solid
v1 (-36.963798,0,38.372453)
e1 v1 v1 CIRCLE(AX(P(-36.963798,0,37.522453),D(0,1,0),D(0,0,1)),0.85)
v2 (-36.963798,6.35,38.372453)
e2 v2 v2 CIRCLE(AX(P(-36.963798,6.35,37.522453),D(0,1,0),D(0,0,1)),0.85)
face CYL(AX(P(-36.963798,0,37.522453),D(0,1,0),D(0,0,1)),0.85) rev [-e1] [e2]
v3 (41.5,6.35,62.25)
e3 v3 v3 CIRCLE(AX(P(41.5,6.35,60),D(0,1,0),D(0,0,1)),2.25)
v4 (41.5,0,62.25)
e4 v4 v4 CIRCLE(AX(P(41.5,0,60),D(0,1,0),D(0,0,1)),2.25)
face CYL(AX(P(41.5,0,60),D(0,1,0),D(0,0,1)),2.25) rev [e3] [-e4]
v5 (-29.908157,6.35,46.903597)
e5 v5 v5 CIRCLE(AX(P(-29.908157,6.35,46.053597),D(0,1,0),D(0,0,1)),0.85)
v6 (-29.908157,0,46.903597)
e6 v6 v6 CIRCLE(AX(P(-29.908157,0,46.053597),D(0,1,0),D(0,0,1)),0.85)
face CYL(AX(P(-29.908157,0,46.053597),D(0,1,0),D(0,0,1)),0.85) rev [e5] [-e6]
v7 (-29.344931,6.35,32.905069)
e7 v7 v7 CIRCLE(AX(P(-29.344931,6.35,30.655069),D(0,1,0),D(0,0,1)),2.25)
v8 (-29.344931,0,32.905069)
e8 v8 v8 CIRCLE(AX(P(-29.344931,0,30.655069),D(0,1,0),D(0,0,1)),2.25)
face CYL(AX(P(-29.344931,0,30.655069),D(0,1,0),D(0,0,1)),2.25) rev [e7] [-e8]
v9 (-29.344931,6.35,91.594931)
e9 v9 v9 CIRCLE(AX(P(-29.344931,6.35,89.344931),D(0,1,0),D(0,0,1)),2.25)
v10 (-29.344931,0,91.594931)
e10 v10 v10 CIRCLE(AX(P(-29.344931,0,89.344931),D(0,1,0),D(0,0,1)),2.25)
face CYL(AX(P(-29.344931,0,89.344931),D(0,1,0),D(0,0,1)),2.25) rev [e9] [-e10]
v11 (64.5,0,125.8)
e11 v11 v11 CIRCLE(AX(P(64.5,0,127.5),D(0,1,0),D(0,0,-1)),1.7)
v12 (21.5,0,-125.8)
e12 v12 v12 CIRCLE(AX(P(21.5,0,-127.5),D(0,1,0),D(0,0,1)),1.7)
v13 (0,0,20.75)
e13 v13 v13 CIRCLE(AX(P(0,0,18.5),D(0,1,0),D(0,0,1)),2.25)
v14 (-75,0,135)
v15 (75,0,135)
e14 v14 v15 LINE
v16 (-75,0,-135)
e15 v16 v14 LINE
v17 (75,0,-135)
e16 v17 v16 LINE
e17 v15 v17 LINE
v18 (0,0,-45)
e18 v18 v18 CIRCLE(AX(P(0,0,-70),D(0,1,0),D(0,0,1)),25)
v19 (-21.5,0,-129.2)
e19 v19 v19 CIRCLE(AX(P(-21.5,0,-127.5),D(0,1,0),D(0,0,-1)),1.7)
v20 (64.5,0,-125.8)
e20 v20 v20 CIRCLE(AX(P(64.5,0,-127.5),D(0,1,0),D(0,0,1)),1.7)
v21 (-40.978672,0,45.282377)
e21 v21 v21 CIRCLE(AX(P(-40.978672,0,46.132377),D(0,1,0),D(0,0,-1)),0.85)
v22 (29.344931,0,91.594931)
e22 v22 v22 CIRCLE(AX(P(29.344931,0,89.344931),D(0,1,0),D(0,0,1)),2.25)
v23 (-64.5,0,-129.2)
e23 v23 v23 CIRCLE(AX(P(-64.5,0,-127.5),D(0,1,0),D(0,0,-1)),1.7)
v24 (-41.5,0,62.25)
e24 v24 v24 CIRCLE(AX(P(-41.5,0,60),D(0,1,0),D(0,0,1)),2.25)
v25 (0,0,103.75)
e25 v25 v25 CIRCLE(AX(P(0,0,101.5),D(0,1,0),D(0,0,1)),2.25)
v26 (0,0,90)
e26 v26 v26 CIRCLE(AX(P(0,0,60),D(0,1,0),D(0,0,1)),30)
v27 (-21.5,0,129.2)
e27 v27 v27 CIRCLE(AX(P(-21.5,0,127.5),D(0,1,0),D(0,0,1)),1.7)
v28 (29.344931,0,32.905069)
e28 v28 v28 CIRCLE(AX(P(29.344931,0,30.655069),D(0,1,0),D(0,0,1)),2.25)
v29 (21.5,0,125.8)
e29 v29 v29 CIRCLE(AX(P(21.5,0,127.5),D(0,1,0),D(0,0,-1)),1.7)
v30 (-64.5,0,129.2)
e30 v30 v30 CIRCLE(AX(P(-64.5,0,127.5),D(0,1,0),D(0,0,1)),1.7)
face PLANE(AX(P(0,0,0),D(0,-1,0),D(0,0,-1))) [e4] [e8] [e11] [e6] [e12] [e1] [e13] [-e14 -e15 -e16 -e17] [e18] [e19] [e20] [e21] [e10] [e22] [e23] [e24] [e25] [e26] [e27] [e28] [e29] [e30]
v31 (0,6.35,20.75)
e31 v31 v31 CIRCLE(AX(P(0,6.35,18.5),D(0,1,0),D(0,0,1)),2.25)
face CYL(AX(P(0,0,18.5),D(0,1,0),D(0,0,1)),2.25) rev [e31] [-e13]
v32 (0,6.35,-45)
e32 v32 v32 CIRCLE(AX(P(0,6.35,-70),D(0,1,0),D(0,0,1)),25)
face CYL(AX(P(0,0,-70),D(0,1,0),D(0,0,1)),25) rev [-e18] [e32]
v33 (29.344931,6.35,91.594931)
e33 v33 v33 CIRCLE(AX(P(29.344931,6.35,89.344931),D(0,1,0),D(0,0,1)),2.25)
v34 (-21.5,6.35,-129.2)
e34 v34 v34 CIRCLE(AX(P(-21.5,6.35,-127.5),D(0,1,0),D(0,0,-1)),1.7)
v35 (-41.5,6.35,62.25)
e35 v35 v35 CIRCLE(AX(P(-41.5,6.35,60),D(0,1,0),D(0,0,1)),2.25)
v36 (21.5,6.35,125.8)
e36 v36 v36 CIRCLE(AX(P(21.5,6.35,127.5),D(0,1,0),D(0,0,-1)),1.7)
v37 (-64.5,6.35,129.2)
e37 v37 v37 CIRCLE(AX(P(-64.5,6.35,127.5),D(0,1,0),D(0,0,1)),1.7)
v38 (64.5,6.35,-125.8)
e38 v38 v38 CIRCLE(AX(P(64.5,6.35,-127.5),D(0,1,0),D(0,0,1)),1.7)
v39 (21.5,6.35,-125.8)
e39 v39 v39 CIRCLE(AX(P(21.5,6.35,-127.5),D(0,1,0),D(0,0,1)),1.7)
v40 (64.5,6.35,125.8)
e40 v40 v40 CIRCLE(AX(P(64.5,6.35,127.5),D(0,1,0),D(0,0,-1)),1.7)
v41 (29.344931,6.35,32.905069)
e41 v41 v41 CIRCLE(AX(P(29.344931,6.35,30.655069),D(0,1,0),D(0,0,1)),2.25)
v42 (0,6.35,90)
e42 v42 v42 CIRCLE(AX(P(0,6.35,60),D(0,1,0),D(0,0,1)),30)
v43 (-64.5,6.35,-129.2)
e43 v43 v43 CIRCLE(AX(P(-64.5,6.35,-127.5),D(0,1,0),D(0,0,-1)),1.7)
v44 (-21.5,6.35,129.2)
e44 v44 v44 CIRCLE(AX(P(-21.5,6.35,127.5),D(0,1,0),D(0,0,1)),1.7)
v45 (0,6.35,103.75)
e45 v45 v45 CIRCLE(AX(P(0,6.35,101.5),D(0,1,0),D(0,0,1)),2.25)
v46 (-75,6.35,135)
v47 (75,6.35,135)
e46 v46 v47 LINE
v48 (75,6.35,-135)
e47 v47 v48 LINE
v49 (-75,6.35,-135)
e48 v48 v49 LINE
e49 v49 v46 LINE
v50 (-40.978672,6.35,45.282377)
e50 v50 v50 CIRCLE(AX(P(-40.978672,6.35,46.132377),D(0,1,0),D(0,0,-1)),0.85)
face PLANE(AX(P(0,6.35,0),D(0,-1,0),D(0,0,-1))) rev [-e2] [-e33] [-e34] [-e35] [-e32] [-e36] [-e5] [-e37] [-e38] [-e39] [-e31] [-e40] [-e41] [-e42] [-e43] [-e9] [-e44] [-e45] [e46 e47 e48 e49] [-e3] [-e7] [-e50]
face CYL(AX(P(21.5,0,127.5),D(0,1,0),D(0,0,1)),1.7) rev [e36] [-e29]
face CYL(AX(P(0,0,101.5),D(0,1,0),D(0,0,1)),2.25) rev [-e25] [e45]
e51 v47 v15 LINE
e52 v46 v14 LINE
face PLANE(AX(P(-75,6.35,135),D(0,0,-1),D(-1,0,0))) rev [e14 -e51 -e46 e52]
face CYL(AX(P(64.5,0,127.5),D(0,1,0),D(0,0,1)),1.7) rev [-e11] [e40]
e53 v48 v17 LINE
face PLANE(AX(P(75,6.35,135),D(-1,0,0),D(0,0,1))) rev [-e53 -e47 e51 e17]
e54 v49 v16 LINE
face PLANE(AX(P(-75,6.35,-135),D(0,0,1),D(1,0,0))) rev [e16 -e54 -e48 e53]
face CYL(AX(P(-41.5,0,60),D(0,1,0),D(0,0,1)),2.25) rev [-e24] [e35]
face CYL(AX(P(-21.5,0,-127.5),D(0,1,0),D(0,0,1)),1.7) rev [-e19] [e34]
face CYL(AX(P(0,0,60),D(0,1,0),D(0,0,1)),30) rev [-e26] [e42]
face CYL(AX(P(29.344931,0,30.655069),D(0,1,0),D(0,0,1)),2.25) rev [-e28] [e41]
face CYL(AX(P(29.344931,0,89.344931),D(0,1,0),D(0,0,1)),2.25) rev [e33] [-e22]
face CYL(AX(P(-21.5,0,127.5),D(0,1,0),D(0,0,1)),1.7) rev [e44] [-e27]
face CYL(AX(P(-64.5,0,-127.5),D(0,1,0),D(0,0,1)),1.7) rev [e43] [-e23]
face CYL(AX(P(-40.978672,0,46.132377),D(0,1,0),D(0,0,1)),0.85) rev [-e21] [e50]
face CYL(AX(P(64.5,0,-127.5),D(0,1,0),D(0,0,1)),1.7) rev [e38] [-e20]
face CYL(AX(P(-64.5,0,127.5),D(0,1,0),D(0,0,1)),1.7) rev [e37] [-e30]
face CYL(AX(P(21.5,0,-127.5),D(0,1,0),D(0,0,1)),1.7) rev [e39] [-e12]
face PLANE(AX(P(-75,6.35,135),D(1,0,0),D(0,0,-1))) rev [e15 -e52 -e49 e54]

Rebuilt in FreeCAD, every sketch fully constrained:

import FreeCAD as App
import Part
import Sketcher
from FreeCAD import Vector
Q = App.Units.Quantity


def add_polygon(sketch, points):
    """Adds a closed chain of lines whose ends are joined by coincident constraints."""
    first, n = sketch.GeometryCount, len(points)
    for a, b in zip(points, points[1:] + points[:1]):
        sketch.addGeometry(Part.LineSegment(App.Vector(*a, 0), App.Vector(*b, 0)), False)
    for i in range(n):
        sketch.addConstraint(Sketcher.Constraint("Coincident", first + i, 2, first + (i + 1) % n, 1))

doc = App.newDocument("Part")
body = doc.addObject("PartDesign::Body", "Body")

sketch1 = doc.addObject("Sketcher::SketchObject", "Sketch")
body.addObject(sketch1)
sketch1.AttachmentSupport = (doc.XZ_Plane, [""])
sketch1.MapMode = "FlatFace"
add_polygon(sketch1, [(-75, -135), (-75, 135), (75, 135), (75, -135)])
sketch1.addConstraint([
    Sketcher.Constraint("Vertical", 0),
    Sketcher.Constraint("Horizontal", 1),
    Sketcher.Constraint("Vertical", 2),
    Sketcher.Constraint("Horizontal", 3),
    Sketcher.Constraint("Symmetric", 0, 2, 2, 2, -1, 1),
    Sketcher.Constraint("DistanceX", 1, 1, 1, 2, Q("150 mm")),
    Sketcher.Constraint("DistanceY", 0, 1, 0, 2, Q("270 mm")),
])
pad1 = doc.addObject("PartDesign::Pad", "Pad")
body.addObject(pad1)
pad1.Profile = sketch1
pad1.Length = 6.35
pad1.Reversed = True

sketch2 = doc.addObject("Sketcher::SketchObject", "Sketch001")
body.addObject(sketch2)
sketch2.AttachmentSupport = (doc.XZ_Plane, [""])
sketch2.MapMode = "FlatFace"
sketch2.AttachmentOffset = App.Placement(Vector(0, 0, -6.35), App.Rotation())
sketch2.addGeometry([
    Part.Circle(Vector(0, 18.5, 0), Vector(0, 0, 1), 2.2),
    Part.Circle(Vector(29.3, 30.7, 0), Vector(0, 0, 1), 2.2),
    Part.Circle(Vector(41.5, 60, 0), Vector(0, 0, 1), 2.2),
    Part.Circle(Vector(29.3, 89.3, 0), Vector(0, 0, 1), 2.2),
    Part.Circle(Vector(0, 101.5, 0), Vector(0, 0, 1), 2.2),
    Part.Circle(Vector(-29.3, 89.3, 0), Vector(0, 0, 1), 2.2),
    Part.Circle(Vector(-41.5, 60, 0), Vector(0, 0, 1), 2.2),
    Part.Circle(Vector(-29.3, 30.7, 0), Vector(0, 0, 1), 2.2),
    Part.Circle(Vector(0, 60, 0), Vector(0, 0, 1), 30),
], False)
sketch2.addConstraint([
    Sketcher.Constraint("Equal", 0, 1),
    Sketcher.Constraint("Equal", 1, 2),
    Sketcher.Constraint("Equal", 2, 3),
    Sketcher.Constraint("Equal", 3, 4),
    Sketcher.Constraint("Equal", 4, 5),
    Sketcher.Constraint("Equal", 5, 6),
    Sketcher.Constraint("Equal", 6, 7),
    Sketcher.Constraint("Symmetric", 3, 3, 5, 3, -2),
    Sketcher.Constraint("Symmetric", 2, 3, 6, 3, -2),
    Sketcher.Constraint("Symmetric", 1, 3, 7, 3, -2),
    Sketcher.Constraint("PointOnObject", 0, 3, -2),
    Sketcher.Constraint("PointOnObject", 4, 3, -2),
    Sketcher.Constraint("PointOnObject", 8, 3, -2),
    Sketcher.Constraint("Horizontal", 6, 3, 8, 3),
    Sketcher.Constraint("Vertical", 1, 3, 3, 3),
    Sketcher.Constraint("Diameter", 8, Q("60 mm")),
    Sketcher.Constraint("Diameter", 0, Q("4.5 mm")),
    Sketcher.Constraint("DistanceY", -1, 1, 2, 3, Q("60 mm")),
    Sketcher.Constraint("DistanceY", 0, 3, 4, 3, Q("83 mm")),
    Sketcher.Constraint("DistanceY", -1, 1, 0, 3, Q("18.5 mm")),
    Sketcher.Constraint("DistanceX", -1, 1, 2, 3, Q("41.5 mm")),
    Sketcher.Constraint("DistanceX", -1, 1, 1, 3, Q("29.344931 mm")),
    Sketcher.Constraint("DistanceY", -1, 1, 1, 3, Q("30.655069 mm")),
    Sketcher.Constraint("DistanceY", -1, 1, 3, 3, Q("89.344931 mm")),
])
pocket1 = doc.addObject("PartDesign::Pocket", "Pocket")
body.addObject(pocket1)
pocket1.Profile = sketch2
pocket1.Type = "ThroughAll"
pocket1.Reversed = True

sketch3 = doc.addObject("Sketcher::SketchObject", "Sketch002")
body.addObject(sketch3)
sketch3.AttachmentSupport = (doc.XZ_Plane, [""])
sketch3.MapMode = "FlatFace"
sketch3.AttachmentOffset = App.Placement(Vector(0, 0, -6.35), App.Rotation())
sketch3.addGeometry([
    Part.Circle(Vector(-37, 37.5, 0), Vector(0, 0, 1), 0.8),
    Part.Circle(Vector(-41, 46.1, 0), Vector(0, 0, 1), 0.8),
    Part.Circle(Vector(-29.9, 46.1, 0), Vector(0, 0, 1), 0.8),
], False)
sketch3.addConstraint([
    Sketcher.Constraint("Equal", 0, 1),
    Sketcher.Constraint("Equal", 1, 2),
    Sketcher.Constraint("Diameter", 0, Q("1.7 mm")),
    Sketcher.Constraint("DistanceX", 0, 3, -1, 1, Q("36.963798 mm")),
    Sketcher.Constraint("DistanceX", 1, 3, -1, 1, Q("40.978672 mm")),
    Sketcher.Constraint("DistanceX", 0, 3, 2, 3, Q("7.055641 mm")),
    Sketcher.Constraint("DistanceY", 2, 3, 1, 3, Q("0.078779 mm")),
    Sketcher.Constraint("DistanceY", -1, 1, 0, 3, Q("37.522453 mm")),
    Sketcher.Constraint("DistanceY", -1, 1, 1, 3, Q("46.132377 mm")),
])
pocket2 = doc.addObject("PartDesign::Pocket", "Pocket001")
body.addObject(pocket2)
pocket2.Profile = sketch3
pocket2.Type = "ThroughAll"
pocket2.Reversed = True

sketch4 = doc.addObject("Sketcher::SketchObject", "Sketch003")
body.addObject(sketch4)
sketch4.AttachmentSupport = (doc.XZ_Plane, [""])
sketch4.MapMode = "FlatFace"
sketch4.AttachmentOffset = App.Placement(Vector(0, 0, -6.35), App.Rotation())
sketch4.addGeometry([
    Part.Circle(Vector(-64.5, 127.5, 0), Vector(0, 0, 1), 1.7),
    Part.Circle(Vector(-21.5, 127.5, 0), Vector(0, 0, 1), 1.7),
    Part.Circle(Vector(21.5, 127.5, 0), Vector(0, 0, 1), 1.7),
    Part.Circle(Vector(64.5, 127.5, 0), Vector(0, 0, 1), 1.7),
    Part.Circle(Vector(64.5, -127.5, 0), Vector(0, 0, 1), 1.7),
    Part.Circle(Vector(21.5, -127.5, 0), Vector(0, 0, 1), 1.7),
    Part.Circle(Vector(-64.5, -127.5, 0), Vector(0, 0, 1), 1.7),
    Part.Circle(Vector(-21.5, -127.5, 0), Vector(0, 0, 1), 1.7),
], False)
sketch4.addConstraint([
    Sketcher.Constraint("Equal", 0, 1),
    Sketcher.Constraint("Equal", 1, 2),
    Sketcher.Constraint("Equal", 2, 3),
    Sketcher.Constraint("Equal", 3, 4),
    Sketcher.Constraint("Equal", 4, 5),
    Sketcher.Constraint("Equal", 5, 6),
    Sketcher.Constraint("Equal", 6, 7),
    Sketcher.Constraint("Symmetric", 0, 3, 4, 3, -1, 1),
    Sketcher.Constraint("Symmetric", 1, 3, 5, 3, -1, 1),
    Sketcher.Constraint("Symmetric", 3, 3, 6, 3, -1, 1),
    Sketcher.Constraint("Symmetric", 2, 3, 7, 3, -1, 1),
    Sketcher.Constraint("Symmetric", 1, 3, 2, 3, -2),
    Sketcher.Constraint("Symmetric", 0, 3, 3, 3, -2),
    Sketcher.Constraint("Horizontal", 0, 3, 1, 3),
    Sketcher.Constraint("Diameter", 0, Q("3.4 mm")),
    Sketcher.Constraint("DistanceX", 0, 3, 1, 3, Q("43 mm")),
    Sketcher.Constraint("DistanceX", 1, 3, 2, 3, Q("43 mm")),
    Sketcher.Constraint("DistanceY", 4, 3, 3, 3, Q("255 mm")),
])
pocket3 = doc.addObject("PartDesign::Pocket", "Pocket002")
body.addObject(pocket3)
pocket3.Profile = sketch4
pocket3.Type = "ThroughAll"
pocket3.Reversed = True

sketch5 = doc.addObject("Sketcher::SketchObject", "Sketch004")
body.addObject(sketch5)
sketch5.AttachmentSupport = (doc.XZ_Plane, [""])
sketch5.MapMode = "FlatFace"
sketch5.AttachmentOffset = App.Placement(Vector(0, 0, -6.35), App.Rotation())
sketch5.addGeometry(Part.Circle(Vector(0, -70, 0), Vector(0, 0, 1), 25), False)
sketch5.addConstraint([
    Sketcher.Constraint("PointOnObject", 0, 3, -2),
    Sketcher.Constraint("Diameter", 0, Q("50 mm")),
    Sketcher.Constraint("DistanceY", 0, 3, -1, 1, Q("70 mm")),
])
pocket4 = doc.addObject("PartDesign::Pocket", "Pocket003")
body.addObject(pocket4)
pocket4.Profile = sketch5
pocket4.Type = "ThroughAll"
pocket4.Reversed = True

doc.recompute()
